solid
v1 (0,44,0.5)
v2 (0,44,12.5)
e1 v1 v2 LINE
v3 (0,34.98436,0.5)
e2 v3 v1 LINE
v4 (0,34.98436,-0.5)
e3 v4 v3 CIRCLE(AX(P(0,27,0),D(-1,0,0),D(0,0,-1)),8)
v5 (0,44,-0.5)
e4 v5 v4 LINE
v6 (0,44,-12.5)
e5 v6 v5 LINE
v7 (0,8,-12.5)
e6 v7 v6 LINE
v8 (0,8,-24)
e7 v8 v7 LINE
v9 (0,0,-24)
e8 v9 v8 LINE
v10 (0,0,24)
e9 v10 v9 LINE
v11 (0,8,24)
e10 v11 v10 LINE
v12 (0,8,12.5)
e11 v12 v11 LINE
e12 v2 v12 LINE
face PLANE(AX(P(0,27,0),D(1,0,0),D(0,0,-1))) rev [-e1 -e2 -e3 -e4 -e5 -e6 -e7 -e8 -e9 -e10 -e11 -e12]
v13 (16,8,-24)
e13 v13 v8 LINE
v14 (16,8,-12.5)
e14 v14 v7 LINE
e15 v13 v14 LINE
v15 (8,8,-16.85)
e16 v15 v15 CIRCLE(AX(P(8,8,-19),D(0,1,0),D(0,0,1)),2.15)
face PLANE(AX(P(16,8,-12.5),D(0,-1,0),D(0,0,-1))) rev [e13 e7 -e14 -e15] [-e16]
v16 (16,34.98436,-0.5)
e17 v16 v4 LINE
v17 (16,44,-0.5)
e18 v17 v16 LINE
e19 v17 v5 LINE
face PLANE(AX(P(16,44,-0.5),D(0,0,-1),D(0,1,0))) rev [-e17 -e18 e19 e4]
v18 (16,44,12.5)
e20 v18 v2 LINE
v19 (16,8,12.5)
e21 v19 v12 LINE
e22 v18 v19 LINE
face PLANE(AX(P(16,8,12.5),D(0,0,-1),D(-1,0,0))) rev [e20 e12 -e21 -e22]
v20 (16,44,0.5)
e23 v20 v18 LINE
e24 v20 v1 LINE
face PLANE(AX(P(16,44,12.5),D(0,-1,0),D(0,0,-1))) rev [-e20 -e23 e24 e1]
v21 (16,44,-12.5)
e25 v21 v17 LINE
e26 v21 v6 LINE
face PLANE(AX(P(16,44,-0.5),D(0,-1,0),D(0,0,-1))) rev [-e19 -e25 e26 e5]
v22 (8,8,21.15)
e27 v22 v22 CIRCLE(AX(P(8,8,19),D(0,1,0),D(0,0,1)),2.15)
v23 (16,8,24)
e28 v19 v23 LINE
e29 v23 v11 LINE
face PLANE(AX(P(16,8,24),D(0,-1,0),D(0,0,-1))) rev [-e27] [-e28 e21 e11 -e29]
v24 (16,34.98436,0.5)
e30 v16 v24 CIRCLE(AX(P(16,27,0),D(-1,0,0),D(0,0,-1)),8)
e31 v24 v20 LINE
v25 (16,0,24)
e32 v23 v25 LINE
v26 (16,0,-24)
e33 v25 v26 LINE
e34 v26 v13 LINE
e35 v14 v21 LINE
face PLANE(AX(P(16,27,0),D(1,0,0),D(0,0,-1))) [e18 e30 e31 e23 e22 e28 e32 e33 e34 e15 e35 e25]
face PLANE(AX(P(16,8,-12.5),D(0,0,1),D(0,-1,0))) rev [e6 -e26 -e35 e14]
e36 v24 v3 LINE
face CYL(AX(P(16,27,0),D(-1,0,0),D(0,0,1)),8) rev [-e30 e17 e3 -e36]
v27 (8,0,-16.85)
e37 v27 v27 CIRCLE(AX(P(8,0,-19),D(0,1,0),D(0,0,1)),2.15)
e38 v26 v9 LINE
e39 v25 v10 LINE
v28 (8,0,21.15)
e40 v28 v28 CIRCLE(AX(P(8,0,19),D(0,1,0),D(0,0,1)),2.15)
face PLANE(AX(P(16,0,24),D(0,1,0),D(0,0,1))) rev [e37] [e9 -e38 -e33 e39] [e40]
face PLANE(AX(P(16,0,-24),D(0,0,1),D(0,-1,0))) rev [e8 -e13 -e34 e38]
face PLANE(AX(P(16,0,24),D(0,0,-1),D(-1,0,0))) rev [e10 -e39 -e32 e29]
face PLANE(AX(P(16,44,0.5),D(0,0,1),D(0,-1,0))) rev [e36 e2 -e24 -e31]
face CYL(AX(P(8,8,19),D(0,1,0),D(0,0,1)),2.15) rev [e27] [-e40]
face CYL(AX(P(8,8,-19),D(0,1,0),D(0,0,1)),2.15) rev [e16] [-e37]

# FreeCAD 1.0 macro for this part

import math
import FreeCAD as App
import Part
import Sketcher
from FreeCAD import Vector
Q = App.Units.Quantity

doc = App.newDocument("Part")
body = doc.addObject("PartDesign::Body", "Body")

sketch1 = body.newObject("Sketcher::SketchObject", "Sketch")
sketch1.AttachmentSupport = (doc.getObject("YZ_Plane"), [""])
sketch1.MapMode = "FlatFace"
sketch1.addGeometry([
    Part.LineSegment(Vector(8, -24, 0), Vector(8, -12.5, 0)),
    Part.LineSegment(Vector(8, -12.5, 0), Vector(44, -12.5, 0)),
    Part.LineSegment(Vector(44, -12.5, 0), Vector(44, -0.5, 0)),
    Part.LineSegment(Vector(44, -0.5, 0), Vector(35, -0.5, 0)),
    Part.ArcOfCircle(Part.Circle(Vector(27, 0, 0), Vector(0, 0, 1), 8), math.radians(4), math.radians(356)),
    Part.LineSegment(Vector(35, 0.5, 0), Vector(44, 0.5, 0)),
    Part.LineSegment(Vector(44, 0.5, 0), Vector(44, 12.5, 0)),
    Part.LineSegment(Vector(44, 12.5, 0), Vector(8, 12.5, 0)),
    Part.LineSegment(Vector(8, 12.5, 0), Vector(8, 24, 0)),
    Part.LineSegment(Vector(8, 24, 0), Vector(0, 24, 0)),
    Part.LineSegment(Vector(0, 24, 0), Vector(0, -24, 0)),
    Part.LineSegment(Vector(0, -24, 0), Vector(8, -24, 0)),
], False)
sketch1.addConstraint([
    Sketcher.Constraint("Coincident", 0, 2, 1, 1),
    Sketcher.Constraint("Coincident", 1, 2, 2, 1),
    Sketcher.Constraint("Coincident", 2, 2, 3, 1),
    Sketcher.Constraint("Coincident", 3, 2, 4, 2),
    Sketcher.Constraint("Coincident", 4, 1, 5, 1),
    Sketcher.Constraint("Coincident", 5, 2, 6, 1),
    Sketcher.Constraint("Coincident", 6, 2, 7, 1),
    Sketcher.Constraint("Coincident", 7, 2, 8, 1),
    Sketcher.Constraint("Coincident", 8, 2, 9, 1),
    Sketcher.Constraint("Coincident", 9, 2, 10, 1),
    Sketcher.Constraint("Coincident", 10, 2, 11, 1),
    Sketcher.Constraint("Coincident", 11, 2, 0, 1),
    Sketcher.Constraint("Vertical", 0),
    Sketcher.Constraint("Horizontal", 1),
    Sketcher.Constraint("Vertical", 2),
    Sketcher.Constraint("Horizontal", 3),
    Sketcher.Constraint("Horizontal", 5),
    Sketcher.Constraint("Vertical", 6),
    Sketcher.Constraint("Horizontal", 7),
    Sketcher.Constraint("Vertical", 8),
    Sketcher.Constraint("Horizontal", 9),
    Sketcher.Constraint("Vertical", 10),
    Sketcher.Constraint("Horizontal", 11),
    Sketcher.Constraint("Symmetric", 9, 2, 10, 2, -1, 1),
    Sketcher.Constraint("Symmetric", 3, 2, 4, 1, -1),
    Sketcher.Constraint("Symmetric", 1, 2, 6, 2, -1),
    Sketcher.Constraint("Vertical", 0, 2, 7, 2),
    Sketcher.Constraint("Radius", 4, Q("8 mm")),
    Sketcher.Constraint("DistanceX", 1, 1, 1, 2, Q("36 mm")),
    Sketcher.Constraint("DistanceX", 9, 2, 9, 1, Q("8 mm")),
    Sketcher.Constraint("DistanceY", 2, 1, 2, 2, Q("12 mm")),
    Sketcher.Constraint("DistanceY", 10, 2, 10, 1, Q("48 mm")),
    Sketcher.Constraint("DistanceY", 0, 1, 0, 2, Q("11.5 mm")),
    Sketcher.Constraint("DistanceX", -1, 1, 4, 3, Q("27 mm")),
])
pad1 = body.newObject("PartDesign::Pad", "Pad")
pad1.Profile = sketch1
pad1.Length = 16

sketch2 = body.newObject("Sketcher::SketchObject", "Sketch001")
sketch2.AttachmentSupport = (doc.getObject("XZ_Plane"), [""])
sketch2.MapMode = "FlatFace"
sketch2.AttachmentOffset = App.Placement(Vector(0, 0, -8), App.Rotation())
sketch2.addGeometry([
    Part.Circle(Vector(8, -19, 0), Vector(0, 0, 1), 2.1),
    Part.Circle(Vector(8, 19, 0), Vector(0, 0, 1), 2.1),
], False)
sketch2.addConstraint([
    Sketcher.Constraint("Equal", 0, 1),
    Sketcher.Constraint("Symmetric", 0, 3, 1, 3, -1),
    Sketcher.Constraint("Diameter", 0, Q("4.3 mm")),
    Sketcher.Constraint("DistanceX", -1, 1, 0, 3, Q("8 mm")),
    Sketcher.Constraint("DistanceY", 0, 3, -1, 1, Q("19 mm")),
])
doc.recompute()
hole = body.newObject("PartDesign::Hole", "Hole")
hole.Profile = sketch2
hole.ThreadType = "None"
hole.Diameter = 4.3
hole.DepthType = "ThroughAll"
hole.Reversed = True

doc.recompute()
